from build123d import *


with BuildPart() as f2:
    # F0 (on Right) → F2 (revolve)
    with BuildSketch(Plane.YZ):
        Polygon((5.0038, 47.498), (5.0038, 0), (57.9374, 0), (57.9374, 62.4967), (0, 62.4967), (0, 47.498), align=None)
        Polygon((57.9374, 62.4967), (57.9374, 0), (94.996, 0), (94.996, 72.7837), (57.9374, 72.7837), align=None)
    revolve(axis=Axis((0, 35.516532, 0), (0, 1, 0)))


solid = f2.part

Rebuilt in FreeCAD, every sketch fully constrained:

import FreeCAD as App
import Part
import Sketcher
Q = App.Units.Quantity


def add_polygon(sketch, points):
    """Adds a closed chain of lines whose ends are joined by coincident constraints."""
    first, n = sketch.GeometryCount, len(points)
    for a, b in zip(points, points[1:] + points[:1]):
        sketch.addGeometry(Part.LineSegment(App.Vector(*a, 0), App.Vector(*b, 0)), False)
    for i in range(n):
        sketch.addConstraint(Sketcher.Constraint("Coincident", first + i, 2, first + (i + 1) % n, 1))

doc = App.newDocument("Part")
body = doc.addObject("PartDesign::Body", "Body")

# Sketch on YZ plane
sketch1 = doc.addObject("Sketcher::SketchObject", "Sketch")
body.addObject(sketch1)
sketch1.AttachmentSupport = (doc.YZ_Plane, [""])
sketch1.MapMode = "FlatFace"
add_polygon(sketch1, [(5.0038, 47.498), (5.0038, 0), (94.996, 0), (94.996, 72.7837), (57.9374, 72.7837), (57.9374, 62.4967), (0, 62.4967), (0, 47.498)])  # lines 0-7
sketch1.addConstraint([
    Sketcher.Constraint("Vertical", 0),
    Sketcher.Constraint("Horizontal", 1),
    Sketcher.Constraint("Vertical", 2),
    Sketcher.Constraint("Horizontal", 3),
    Sketcher.Constraint("Vertical", 4),
    Sketcher.Constraint("Horizontal", 5),
    Sketcher.Constraint("Vertical", 6),
    Sketcher.Constraint("Horizontal", 7),
    Sketcher.Constraint("PointOnObject", 0, 2, -1),
    Sketcher.Constraint("PointOnObject", 5, 2, -2),
    Sketcher.Constraint("DistanceY", 0, 2, 0, 1, Q("1.87 in")),
    Sketcher.Constraint("DistanceX", 1, 1, 1, 2, Q("3.543 in")),
    Sketcher.Constraint("DistanceX", 3, 2, 3, 1, Q("1.459 in")),
    Sketcher.Constraint("DistanceX", 5, 2, 5, 1, Q("2.281 in")),
    Sketcher.Constraint("DistanceY", 4, 2, 4, 1, Q("0.405 in")),
    Sketcher.Constraint("DistanceY", 2, 1, 2, 2, Q("2.8655 in")),
])
revolution = doc.addObject("PartDesign::Revolution", "Revolution")
body.addObject(revolution)
revolution.Profile = sketch1
revolution.ReferenceAxis = (sketch1, ["H_Axis"])
revolution.Angle = 360

doc.recompute()
